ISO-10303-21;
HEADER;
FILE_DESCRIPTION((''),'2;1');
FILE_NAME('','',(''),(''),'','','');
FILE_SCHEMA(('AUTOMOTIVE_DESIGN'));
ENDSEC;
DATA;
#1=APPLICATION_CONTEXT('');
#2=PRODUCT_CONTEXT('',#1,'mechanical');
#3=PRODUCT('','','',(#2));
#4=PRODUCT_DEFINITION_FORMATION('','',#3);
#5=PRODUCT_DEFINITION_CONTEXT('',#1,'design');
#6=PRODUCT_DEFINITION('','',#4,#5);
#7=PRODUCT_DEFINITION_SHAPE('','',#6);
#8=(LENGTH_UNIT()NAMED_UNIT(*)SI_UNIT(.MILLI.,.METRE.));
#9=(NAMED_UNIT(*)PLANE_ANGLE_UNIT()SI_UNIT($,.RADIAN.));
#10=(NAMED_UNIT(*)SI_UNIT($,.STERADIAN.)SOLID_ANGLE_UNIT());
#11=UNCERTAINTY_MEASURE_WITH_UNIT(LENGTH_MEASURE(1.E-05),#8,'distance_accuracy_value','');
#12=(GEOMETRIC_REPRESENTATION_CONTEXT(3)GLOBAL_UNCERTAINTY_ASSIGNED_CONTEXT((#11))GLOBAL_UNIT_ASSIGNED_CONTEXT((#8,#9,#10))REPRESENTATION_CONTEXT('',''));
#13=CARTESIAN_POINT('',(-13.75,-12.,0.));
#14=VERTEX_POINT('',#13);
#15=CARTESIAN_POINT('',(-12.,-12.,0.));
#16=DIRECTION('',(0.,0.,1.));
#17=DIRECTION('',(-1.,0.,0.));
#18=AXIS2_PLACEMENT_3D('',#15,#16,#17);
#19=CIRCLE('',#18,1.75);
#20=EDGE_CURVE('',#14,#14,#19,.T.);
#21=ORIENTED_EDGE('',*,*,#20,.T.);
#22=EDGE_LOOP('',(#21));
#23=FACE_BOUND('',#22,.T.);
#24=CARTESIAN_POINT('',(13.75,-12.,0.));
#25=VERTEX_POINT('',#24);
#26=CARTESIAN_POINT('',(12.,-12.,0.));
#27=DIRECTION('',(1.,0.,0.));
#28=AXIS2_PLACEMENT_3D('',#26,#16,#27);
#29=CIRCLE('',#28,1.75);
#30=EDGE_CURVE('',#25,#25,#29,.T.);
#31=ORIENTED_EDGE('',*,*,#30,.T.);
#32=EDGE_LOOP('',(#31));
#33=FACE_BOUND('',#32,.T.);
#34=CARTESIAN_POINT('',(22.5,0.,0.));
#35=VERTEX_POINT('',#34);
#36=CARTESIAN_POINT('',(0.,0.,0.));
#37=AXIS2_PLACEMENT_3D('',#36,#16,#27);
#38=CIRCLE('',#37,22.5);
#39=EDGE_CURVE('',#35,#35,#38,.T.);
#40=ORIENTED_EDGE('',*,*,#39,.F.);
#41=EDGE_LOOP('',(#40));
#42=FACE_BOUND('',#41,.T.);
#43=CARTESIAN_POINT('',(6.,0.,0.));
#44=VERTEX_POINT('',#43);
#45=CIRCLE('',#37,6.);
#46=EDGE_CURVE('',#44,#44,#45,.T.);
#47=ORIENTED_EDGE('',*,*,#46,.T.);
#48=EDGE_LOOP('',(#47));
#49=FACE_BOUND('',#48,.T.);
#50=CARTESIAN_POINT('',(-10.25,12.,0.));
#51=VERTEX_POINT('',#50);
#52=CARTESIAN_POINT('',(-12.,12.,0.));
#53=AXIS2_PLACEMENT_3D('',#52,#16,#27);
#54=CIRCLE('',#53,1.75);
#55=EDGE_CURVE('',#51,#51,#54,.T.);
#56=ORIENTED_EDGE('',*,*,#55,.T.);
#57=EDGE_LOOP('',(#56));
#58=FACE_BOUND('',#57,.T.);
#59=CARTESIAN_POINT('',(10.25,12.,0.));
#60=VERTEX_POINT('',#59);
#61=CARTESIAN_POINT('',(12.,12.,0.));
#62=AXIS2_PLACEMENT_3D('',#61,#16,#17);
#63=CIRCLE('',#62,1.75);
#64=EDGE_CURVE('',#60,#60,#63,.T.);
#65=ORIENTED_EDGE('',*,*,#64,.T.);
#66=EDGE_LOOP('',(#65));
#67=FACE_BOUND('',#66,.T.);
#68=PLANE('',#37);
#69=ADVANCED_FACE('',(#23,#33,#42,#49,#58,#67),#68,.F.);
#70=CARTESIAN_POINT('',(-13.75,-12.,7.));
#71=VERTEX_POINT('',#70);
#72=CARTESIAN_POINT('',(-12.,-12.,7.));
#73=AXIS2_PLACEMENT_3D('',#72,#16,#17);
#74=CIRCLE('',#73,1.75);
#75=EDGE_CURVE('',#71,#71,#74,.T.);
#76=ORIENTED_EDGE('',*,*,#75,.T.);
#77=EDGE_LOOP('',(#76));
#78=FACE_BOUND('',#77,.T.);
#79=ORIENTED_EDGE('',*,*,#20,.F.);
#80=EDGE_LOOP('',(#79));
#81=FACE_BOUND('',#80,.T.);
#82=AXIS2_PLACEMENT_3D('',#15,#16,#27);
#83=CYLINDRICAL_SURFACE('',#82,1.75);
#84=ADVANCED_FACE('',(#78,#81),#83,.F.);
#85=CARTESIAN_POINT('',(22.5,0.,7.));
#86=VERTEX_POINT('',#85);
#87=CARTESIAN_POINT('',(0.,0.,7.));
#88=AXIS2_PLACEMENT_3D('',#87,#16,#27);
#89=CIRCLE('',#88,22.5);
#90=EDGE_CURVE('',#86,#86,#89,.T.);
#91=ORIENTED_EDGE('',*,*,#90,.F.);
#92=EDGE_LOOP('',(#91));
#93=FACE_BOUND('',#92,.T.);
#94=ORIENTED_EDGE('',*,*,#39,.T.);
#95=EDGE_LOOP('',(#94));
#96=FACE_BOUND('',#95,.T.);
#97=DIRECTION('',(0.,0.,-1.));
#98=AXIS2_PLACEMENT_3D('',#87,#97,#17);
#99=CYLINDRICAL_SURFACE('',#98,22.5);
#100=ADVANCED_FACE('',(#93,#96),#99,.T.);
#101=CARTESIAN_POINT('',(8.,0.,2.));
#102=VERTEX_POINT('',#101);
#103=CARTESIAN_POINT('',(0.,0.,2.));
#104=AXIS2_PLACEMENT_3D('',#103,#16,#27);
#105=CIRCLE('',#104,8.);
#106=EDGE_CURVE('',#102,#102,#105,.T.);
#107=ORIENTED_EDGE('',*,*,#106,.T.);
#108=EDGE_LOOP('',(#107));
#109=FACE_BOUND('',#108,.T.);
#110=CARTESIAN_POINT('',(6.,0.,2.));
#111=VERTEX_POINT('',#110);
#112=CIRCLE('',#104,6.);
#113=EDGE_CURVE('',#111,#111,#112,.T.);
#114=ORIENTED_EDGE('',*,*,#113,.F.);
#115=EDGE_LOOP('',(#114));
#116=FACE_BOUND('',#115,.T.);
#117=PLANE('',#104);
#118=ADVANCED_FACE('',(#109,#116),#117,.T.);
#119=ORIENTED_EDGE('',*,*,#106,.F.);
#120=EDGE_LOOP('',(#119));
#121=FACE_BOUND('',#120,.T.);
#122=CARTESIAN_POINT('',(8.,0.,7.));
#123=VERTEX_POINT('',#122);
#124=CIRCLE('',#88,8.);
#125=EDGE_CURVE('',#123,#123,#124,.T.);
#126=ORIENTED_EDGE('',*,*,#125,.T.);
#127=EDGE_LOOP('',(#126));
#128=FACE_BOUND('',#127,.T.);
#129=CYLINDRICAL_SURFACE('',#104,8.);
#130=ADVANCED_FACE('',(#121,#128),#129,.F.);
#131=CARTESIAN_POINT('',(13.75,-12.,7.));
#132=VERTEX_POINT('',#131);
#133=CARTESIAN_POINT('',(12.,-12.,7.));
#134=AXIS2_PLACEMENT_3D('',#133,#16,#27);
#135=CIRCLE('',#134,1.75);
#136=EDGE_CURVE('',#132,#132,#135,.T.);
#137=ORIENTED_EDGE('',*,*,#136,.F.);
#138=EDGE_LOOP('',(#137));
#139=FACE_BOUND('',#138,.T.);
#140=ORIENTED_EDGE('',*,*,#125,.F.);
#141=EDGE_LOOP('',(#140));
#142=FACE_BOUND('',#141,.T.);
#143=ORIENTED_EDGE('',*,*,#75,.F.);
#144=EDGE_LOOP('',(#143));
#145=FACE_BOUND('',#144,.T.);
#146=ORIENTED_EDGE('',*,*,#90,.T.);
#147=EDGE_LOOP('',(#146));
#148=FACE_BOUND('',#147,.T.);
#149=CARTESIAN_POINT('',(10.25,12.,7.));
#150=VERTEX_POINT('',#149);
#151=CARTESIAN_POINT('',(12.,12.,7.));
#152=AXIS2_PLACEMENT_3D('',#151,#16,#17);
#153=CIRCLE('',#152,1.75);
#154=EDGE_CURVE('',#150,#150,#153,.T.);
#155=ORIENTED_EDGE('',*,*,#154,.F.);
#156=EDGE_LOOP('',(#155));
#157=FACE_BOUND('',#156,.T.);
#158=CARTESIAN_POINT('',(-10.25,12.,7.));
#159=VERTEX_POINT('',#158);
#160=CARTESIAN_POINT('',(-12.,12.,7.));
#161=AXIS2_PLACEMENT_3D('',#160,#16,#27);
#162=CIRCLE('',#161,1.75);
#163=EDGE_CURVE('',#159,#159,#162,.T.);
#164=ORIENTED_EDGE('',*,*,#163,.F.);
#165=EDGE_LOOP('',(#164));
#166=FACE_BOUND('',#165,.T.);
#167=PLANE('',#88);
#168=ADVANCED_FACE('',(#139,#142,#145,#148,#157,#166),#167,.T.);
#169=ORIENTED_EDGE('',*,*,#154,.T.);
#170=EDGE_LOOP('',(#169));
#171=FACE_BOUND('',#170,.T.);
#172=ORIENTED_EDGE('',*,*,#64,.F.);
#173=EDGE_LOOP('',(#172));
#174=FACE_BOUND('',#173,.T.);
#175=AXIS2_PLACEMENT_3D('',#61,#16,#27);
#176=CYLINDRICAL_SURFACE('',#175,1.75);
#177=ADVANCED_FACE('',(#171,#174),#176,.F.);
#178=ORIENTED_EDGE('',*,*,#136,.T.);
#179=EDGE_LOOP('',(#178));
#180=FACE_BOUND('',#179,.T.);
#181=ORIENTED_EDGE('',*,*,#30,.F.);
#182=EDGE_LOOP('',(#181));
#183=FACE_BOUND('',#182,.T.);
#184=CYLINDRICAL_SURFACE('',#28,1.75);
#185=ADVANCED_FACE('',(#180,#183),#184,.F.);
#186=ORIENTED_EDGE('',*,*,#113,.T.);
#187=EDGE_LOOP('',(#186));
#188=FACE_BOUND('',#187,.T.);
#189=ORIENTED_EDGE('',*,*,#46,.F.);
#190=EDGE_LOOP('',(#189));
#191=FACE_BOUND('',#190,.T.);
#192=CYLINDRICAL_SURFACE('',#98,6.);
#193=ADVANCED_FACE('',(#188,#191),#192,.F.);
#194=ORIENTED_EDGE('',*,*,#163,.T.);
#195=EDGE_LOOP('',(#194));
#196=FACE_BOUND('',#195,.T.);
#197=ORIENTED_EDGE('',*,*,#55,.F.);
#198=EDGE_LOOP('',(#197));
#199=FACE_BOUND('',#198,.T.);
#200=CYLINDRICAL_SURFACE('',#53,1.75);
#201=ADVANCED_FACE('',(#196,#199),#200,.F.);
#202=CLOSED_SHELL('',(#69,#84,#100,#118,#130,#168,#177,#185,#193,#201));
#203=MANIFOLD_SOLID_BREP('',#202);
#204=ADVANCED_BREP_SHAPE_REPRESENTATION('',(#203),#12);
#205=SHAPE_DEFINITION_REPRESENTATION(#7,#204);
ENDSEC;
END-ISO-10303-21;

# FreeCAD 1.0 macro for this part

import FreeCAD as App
import Part
import Sketcher

doc = App.newDocument("Part")
params = doc.addObject("Spreadsheet::Sheet", "Params")
for row, (alias, value) in enumerate([
    ("sketch1_diameter", "45 mm"),
    ("sketch1_diameter2", "12 mm"),
    ("pad1_length", "7 mm"),
    ("sketch2_diameter", "16 mm"),
    ("pocket1_length", "5 mm"),
    ("sketch3_diameter", "3.5 mm"),
], start=1):
    params.set(f"A{row}", alias)
    params.set(f"B{row}", "=" + value)
    params.setAlias(f"B{row}", alias)

body = doc.addObject("PartDesign::Body", "Body")

sketch1 = body.newObject("Sketcher::SketchObject", "Sketch")
sketch1.AttachmentSupport = (doc.getObject("XY_Plane"), [""])
sketch1.MapMode = "FlatFace"
sketch1.addGeometry(Part.Circle(App.Vector(0, 0, 0), App.Vector(0, 0, 1), 22.5), False)
sketch1.addGeometry(Part.Circle(App.Vector(0, 0, 0), App.Vector(0, 0, 1), 6), False)
sketch1.addConstraint(Sketcher.Constraint("Coincident", 0, 3, -1, 1))
sketch1.addConstraint(Sketcher.Constraint("Coincident", 1, 3, -1, 1))
sketch1.addConstraint(Sketcher.Constraint("Diameter", 0, 45.0))
sketch1.addConstraint(Sketcher.Constraint("Diameter", 1, 12.0))
sketch1.setExpression("Constraints[2]", "Params.sketch1_diameter")
sketch1.setExpression("Constraints[3]", "Params.sketch1_diameter2")
pad1 = body.newObject("PartDesign::Pad", "Pad")
pad1.Profile = sketch1
pad1.setExpression("Length", "Params.pad1_length")

sketch2 = body.newObject("Sketcher::SketchObject", "Sketch001")
sketch2.AttachmentSupport = (doc.getObject("XY_Plane"), [""])
sketch2.MapMode = "FlatFace"
sketch2.AttachmentOffset = App.Placement(App.Vector(0, 0, 7), App.Rotation())
sketch2.addGeometry(Part.Circle(App.Vector(0, 0, 0), App.Vector(0, 0, 1), 8), False)
sketch2.addConstraint(Sketcher.Constraint("Coincident", 0, 3, -1, 1))
sketch2.addConstraint(Sketcher.Constraint("Diameter", 0, 16.0))
sketch2.setExpression("Constraints[1]", "Params.sketch2_diameter")
pocket1 = body.newObject("PartDesign::Pocket", "Pocket")
pocket1.Profile = sketch2
pocket1.setExpression("Length", "Params.pocket1_length")

sketch3 = body.newObject("Sketcher::SketchObject", "Sketch002")
sketch3.AttachmentSupport = (doc.getObject("XY_Plane"), [""])
sketch3.MapMode = "FlatFace"
sketch3.AttachmentOffset = App.Placement(App.Vector(0, 0, 7), App.Rotation())
sketch3.addGeometry(Part.Circle(App.Vector(-12, 12, 0), App.Vector(0, 0, 1), 1.75), False)
sketch3.addGeometry(Part.Circle(App.Vector(12, 12, 0), App.Vector(0, 0, 1), 1.75), False)
sketch3.addGeometry(Part.Circle(App.Vector(12, -12, 0), App.Vector(0, 0, 1), 1.75), False)
sketch3.addGeometry(Part.Circle(App.Vector(-12, -12, 0), App.Vector(0, 0, 1), 1.75), False)
sketch3.addConstraint(Sketcher.Constraint("Equal", 0, 1))
sketch3.addConstraint(Sketcher.Constraint("Equal", 1, 2))
sketch3.addConstraint(Sketcher.Constraint("Equal", 2, 3))
sketch3.addConstraint(Sketcher.Constraint("Symmetric", 0, 3, 2, 3, -1, 1))
sketch3.addConstraint(Sketcher.Constraint("Symmetric", 1, 3, 3, 3, -1, 1))
sketch3.addConstraint(Sketcher.Constraint("Symmetric", 0, 3, 1, 3, -2))
sketch3.addConstraint(Sketcher.Constraint("Diameter", 0, 3.5))
sketch3.addConstraint(Sketcher.Constraint("DistanceX", 0, 3, -1, 1, 12.0))
sketch3.addConstraint(Sketcher.Constraint("DistanceY", -1, 1, 0, 3, 12.0))
sketch3.setExpression("Constraints[6]", "Params.sketch3_diameter")
pocket2 = body.newObject("PartDesign::Pocket", "Pocket001")
pocket2.Profile = sketch3
pocket2.Type = "ThroughAll"

doc.recompute()
